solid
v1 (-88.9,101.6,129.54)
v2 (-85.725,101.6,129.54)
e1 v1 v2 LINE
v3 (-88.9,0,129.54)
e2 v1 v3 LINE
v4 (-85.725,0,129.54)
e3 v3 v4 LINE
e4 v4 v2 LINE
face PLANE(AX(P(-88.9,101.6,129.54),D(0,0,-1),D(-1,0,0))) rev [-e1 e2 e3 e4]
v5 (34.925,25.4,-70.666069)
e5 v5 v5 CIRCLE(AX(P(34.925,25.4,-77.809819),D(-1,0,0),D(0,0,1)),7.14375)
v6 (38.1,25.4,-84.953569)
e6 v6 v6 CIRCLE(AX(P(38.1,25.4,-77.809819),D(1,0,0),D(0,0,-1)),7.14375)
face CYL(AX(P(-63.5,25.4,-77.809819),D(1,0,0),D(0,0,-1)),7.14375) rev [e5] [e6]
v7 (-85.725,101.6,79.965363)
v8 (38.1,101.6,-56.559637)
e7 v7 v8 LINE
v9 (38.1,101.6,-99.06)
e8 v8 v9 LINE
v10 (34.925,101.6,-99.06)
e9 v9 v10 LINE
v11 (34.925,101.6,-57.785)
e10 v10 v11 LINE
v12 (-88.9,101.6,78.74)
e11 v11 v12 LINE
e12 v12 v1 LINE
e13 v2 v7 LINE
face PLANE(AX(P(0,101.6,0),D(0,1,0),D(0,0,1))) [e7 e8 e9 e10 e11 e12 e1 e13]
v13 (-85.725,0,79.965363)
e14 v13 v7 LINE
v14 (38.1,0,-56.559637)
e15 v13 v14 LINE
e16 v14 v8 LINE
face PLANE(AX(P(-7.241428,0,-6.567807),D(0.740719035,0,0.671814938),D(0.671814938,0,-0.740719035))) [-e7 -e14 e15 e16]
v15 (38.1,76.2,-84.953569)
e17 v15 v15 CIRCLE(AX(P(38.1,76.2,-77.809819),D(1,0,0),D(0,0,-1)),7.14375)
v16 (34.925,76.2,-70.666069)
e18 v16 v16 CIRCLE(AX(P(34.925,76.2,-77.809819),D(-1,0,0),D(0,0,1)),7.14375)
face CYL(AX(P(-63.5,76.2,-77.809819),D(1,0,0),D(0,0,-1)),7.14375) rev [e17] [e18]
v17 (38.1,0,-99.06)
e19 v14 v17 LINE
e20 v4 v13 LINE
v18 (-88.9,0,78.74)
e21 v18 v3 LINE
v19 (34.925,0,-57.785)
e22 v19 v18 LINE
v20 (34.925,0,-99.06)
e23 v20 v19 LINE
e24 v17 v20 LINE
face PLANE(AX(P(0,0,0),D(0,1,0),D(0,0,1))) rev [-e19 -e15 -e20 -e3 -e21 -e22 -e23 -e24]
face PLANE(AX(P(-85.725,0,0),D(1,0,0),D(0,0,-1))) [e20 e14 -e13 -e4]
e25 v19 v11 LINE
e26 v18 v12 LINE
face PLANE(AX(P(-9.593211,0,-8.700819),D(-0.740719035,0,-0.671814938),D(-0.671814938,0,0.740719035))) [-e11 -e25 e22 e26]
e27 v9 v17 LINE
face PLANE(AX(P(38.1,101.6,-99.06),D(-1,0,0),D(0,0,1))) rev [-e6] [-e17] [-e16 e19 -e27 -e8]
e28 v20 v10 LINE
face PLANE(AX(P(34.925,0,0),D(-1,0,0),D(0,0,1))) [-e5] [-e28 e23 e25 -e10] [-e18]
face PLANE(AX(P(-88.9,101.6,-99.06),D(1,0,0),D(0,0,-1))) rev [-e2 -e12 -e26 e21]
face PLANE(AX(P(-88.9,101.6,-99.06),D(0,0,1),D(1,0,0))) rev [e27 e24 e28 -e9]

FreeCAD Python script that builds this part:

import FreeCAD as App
import Part
import Sketcher
from FreeCAD import Vector
Q = App.Units.Quantity


def add_polygon(sketch, points):
    """Adds a closed chain of lines whose ends are joined by coincident constraints."""
    first, n = sketch.GeometryCount, len(points)
    for a, b in zip(points, points[1:] + points[:1]):
        sketch.addGeometry(Part.LineSegment(App.Vector(*a, 0), App.Vector(*b, 0)), False)
    for i in range(n):
        sketch.addConstraint(Sketcher.Constraint("Coincident", first + i, 2, first + (i + 1) % n, 1))

doc = App.newDocument("Part")
body = doc.addObject("PartDesign::Body", "Body")

# Sketch on XZ plane
sketch1 = body.newObject("Sketcher::SketchObject", "Sketch")
sketch1.AttachmentSupport = (doc.getObject("XZ_Plane"), [""])
sketch1.MapMode = "FlatFace"
add_polygon(sketch1, [(-89, -99), (-89, 130), (38, 130), (38, -99)])  # lines 0-3
sketch1.addConstraint(Sketcher.Constraint("Vertical", 0))
sketch1.addConstraint(Sketcher.Constraint("Horizontal", 1))
sketch1.addConstraint(Sketcher.Constraint("Vertical", 2))
sketch1.addConstraint(Sketcher.Constraint("Horizontal", 3))
sketch1.addConstraint(Sketcher.Constraint("DistanceX", 1, 1, 1, 2, Q("5 in")))
sketch1.addConstraint(Sketcher.Constraint("DistanceY", 0, 1, 0, 2, Q("9 in")))
sketch1.addConstraint(Sketcher.Constraint("DistanceX", 0, 2, -1, 1, Q("3.5 in")))
sketch1.addConstraint(Sketcher.Constraint("DistanceY", -1, 1, 0, 2, Q("5.1 in")))
pad1 = body.newObject("PartDesign::Pad", "Pad")
pad1.Profile = sketch1
pad1.Length = Q("4 in")
pad1.Reversed = True

# Sketch on XZ plane
sketch2 = body.newObject("Sketcher::SketchObject", "Sketch001")
sketch2.AttachmentSupport = (doc.getObject("XZ_Plane"), [""])
sketch2.MapMode = "FlatFace"
sketch2.AttachmentOffset = App.Placement(Vector(0, 0, -4 * 25.4), App.Rotation())
add_polygon(sketch2, [(35, -58), (35, -99), (-89, -99), (-89, 79)])  # lines 0-3
add_polygon(sketch2, [(38, 130), (38, -57), (-86, 80), (-86, 130)])  # lines 4-7
sketch2.addConstraint(Sketcher.Constraint("Vertical", 0))
sketch2.addConstraint(Sketcher.Constraint("Horizontal", 1))
sketch2.addConstraint(Sketcher.Constraint("Vertical", 2))
sketch2.addConstraint(Sketcher.Constraint("Vertical", 4))
sketch2.addConstraint(Sketcher.Constraint("Vertical", 6))
sketch2.addConstraint(Sketcher.Constraint("Horizontal", 7))
sketch2.addConstraint(Sketcher.Constraint("Parallel", 3, 5))
sketch2.addConstraint(Sketcher.Constraint("Equal", 1, 7))
sketch2.addConstraint(Sketcher.Constraint("DistanceY", 2, 1, 2, 2, Q("7 in")))
sketch2.addConstraint(Sketcher.Constraint("DistanceX", 1, 2, 4, 2, Q("5 in")))
sketch2.addConstraint(Sketcher.Constraint("DistanceY", 2, 2, 6, 2, Q("2 in")))
sketch2.addConstraint(Sketcher.Constraint("DistanceY", 0, 2, -1, 1, Q("3.9 in")))
sketch2.addConstraint(Sketcher.Constraint("DistanceX", 1, 2, -1, 1, Q("3.5 in")))
sketch2.addConstraint(Sketcher.Constraint("DistanceX", 1, 2, 1, 1, Q("4.875 in")))
sketch2.addConstraint(Sketcher.Constraint("DistanceY", 0, 2, 0, 1, Q("1.625 in")))
sketch2.addConstraint(Sketcher.Constraint("DistanceY", 4, 2, 4, 1, Q("186.099637 mm")))
pocket1 = body.newObject("PartDesign::Pocket", "Pocket")
pocket1.Profile = sketch2
pocket1.Type = "ThroughAll"
pocket1.Reversed = True

# Sketch on YZ plane
sketch3 = body.newObject("Sketcher::SketchObject", "Sketch002")
sketch3.AttachmentSupport = (doc.getObject("YZ_Plane"), [""])
sketch3.MapMode = "FlatFace"
sketch3.AttachmentOffset = App.Placement(Vector(0, 0, 1.5 * 25.4), App.Rotation())
sketch3.addGeometry(Part.Circle(Vector(76, -78, 0), Vector(0, 0, 1), 7), False)
sketch3.addGeometry(Part.Circle(Vector(25, -78, 0), Vector(0, 0, 1), 7), False)
sketch3.addConstraint(Sketcher.Constraint("Equal", 0, 1))
sketch3.addConstraint(Sketcher.Constraint("Horizontal", 0, 3, 1, 3))
sketch3.addConstraint(Sketcher.Constraint("Diameter", 0, Q("0.5625 in")))
sketch3.addConstraint(Sketcher.Constraint("DistanceX", -1, 1, 0, 3, Q("3 in")))
sketch3.addConstraint(Sketcher.Constraint("DistanceX", -1, 1, 1, 3, Q("1 in")))
sketch3.addConstraint(Sketcher.Constraint("DistanceY", 0, 3, -1, 1, Q("77.809819 mm")))
pocket2 = body.newObject("PartDesign::Pocket", "Pocket001")
pocket2.Profile = sketch3
pocket2.Length = Q("4 in")

doc.recompute()
